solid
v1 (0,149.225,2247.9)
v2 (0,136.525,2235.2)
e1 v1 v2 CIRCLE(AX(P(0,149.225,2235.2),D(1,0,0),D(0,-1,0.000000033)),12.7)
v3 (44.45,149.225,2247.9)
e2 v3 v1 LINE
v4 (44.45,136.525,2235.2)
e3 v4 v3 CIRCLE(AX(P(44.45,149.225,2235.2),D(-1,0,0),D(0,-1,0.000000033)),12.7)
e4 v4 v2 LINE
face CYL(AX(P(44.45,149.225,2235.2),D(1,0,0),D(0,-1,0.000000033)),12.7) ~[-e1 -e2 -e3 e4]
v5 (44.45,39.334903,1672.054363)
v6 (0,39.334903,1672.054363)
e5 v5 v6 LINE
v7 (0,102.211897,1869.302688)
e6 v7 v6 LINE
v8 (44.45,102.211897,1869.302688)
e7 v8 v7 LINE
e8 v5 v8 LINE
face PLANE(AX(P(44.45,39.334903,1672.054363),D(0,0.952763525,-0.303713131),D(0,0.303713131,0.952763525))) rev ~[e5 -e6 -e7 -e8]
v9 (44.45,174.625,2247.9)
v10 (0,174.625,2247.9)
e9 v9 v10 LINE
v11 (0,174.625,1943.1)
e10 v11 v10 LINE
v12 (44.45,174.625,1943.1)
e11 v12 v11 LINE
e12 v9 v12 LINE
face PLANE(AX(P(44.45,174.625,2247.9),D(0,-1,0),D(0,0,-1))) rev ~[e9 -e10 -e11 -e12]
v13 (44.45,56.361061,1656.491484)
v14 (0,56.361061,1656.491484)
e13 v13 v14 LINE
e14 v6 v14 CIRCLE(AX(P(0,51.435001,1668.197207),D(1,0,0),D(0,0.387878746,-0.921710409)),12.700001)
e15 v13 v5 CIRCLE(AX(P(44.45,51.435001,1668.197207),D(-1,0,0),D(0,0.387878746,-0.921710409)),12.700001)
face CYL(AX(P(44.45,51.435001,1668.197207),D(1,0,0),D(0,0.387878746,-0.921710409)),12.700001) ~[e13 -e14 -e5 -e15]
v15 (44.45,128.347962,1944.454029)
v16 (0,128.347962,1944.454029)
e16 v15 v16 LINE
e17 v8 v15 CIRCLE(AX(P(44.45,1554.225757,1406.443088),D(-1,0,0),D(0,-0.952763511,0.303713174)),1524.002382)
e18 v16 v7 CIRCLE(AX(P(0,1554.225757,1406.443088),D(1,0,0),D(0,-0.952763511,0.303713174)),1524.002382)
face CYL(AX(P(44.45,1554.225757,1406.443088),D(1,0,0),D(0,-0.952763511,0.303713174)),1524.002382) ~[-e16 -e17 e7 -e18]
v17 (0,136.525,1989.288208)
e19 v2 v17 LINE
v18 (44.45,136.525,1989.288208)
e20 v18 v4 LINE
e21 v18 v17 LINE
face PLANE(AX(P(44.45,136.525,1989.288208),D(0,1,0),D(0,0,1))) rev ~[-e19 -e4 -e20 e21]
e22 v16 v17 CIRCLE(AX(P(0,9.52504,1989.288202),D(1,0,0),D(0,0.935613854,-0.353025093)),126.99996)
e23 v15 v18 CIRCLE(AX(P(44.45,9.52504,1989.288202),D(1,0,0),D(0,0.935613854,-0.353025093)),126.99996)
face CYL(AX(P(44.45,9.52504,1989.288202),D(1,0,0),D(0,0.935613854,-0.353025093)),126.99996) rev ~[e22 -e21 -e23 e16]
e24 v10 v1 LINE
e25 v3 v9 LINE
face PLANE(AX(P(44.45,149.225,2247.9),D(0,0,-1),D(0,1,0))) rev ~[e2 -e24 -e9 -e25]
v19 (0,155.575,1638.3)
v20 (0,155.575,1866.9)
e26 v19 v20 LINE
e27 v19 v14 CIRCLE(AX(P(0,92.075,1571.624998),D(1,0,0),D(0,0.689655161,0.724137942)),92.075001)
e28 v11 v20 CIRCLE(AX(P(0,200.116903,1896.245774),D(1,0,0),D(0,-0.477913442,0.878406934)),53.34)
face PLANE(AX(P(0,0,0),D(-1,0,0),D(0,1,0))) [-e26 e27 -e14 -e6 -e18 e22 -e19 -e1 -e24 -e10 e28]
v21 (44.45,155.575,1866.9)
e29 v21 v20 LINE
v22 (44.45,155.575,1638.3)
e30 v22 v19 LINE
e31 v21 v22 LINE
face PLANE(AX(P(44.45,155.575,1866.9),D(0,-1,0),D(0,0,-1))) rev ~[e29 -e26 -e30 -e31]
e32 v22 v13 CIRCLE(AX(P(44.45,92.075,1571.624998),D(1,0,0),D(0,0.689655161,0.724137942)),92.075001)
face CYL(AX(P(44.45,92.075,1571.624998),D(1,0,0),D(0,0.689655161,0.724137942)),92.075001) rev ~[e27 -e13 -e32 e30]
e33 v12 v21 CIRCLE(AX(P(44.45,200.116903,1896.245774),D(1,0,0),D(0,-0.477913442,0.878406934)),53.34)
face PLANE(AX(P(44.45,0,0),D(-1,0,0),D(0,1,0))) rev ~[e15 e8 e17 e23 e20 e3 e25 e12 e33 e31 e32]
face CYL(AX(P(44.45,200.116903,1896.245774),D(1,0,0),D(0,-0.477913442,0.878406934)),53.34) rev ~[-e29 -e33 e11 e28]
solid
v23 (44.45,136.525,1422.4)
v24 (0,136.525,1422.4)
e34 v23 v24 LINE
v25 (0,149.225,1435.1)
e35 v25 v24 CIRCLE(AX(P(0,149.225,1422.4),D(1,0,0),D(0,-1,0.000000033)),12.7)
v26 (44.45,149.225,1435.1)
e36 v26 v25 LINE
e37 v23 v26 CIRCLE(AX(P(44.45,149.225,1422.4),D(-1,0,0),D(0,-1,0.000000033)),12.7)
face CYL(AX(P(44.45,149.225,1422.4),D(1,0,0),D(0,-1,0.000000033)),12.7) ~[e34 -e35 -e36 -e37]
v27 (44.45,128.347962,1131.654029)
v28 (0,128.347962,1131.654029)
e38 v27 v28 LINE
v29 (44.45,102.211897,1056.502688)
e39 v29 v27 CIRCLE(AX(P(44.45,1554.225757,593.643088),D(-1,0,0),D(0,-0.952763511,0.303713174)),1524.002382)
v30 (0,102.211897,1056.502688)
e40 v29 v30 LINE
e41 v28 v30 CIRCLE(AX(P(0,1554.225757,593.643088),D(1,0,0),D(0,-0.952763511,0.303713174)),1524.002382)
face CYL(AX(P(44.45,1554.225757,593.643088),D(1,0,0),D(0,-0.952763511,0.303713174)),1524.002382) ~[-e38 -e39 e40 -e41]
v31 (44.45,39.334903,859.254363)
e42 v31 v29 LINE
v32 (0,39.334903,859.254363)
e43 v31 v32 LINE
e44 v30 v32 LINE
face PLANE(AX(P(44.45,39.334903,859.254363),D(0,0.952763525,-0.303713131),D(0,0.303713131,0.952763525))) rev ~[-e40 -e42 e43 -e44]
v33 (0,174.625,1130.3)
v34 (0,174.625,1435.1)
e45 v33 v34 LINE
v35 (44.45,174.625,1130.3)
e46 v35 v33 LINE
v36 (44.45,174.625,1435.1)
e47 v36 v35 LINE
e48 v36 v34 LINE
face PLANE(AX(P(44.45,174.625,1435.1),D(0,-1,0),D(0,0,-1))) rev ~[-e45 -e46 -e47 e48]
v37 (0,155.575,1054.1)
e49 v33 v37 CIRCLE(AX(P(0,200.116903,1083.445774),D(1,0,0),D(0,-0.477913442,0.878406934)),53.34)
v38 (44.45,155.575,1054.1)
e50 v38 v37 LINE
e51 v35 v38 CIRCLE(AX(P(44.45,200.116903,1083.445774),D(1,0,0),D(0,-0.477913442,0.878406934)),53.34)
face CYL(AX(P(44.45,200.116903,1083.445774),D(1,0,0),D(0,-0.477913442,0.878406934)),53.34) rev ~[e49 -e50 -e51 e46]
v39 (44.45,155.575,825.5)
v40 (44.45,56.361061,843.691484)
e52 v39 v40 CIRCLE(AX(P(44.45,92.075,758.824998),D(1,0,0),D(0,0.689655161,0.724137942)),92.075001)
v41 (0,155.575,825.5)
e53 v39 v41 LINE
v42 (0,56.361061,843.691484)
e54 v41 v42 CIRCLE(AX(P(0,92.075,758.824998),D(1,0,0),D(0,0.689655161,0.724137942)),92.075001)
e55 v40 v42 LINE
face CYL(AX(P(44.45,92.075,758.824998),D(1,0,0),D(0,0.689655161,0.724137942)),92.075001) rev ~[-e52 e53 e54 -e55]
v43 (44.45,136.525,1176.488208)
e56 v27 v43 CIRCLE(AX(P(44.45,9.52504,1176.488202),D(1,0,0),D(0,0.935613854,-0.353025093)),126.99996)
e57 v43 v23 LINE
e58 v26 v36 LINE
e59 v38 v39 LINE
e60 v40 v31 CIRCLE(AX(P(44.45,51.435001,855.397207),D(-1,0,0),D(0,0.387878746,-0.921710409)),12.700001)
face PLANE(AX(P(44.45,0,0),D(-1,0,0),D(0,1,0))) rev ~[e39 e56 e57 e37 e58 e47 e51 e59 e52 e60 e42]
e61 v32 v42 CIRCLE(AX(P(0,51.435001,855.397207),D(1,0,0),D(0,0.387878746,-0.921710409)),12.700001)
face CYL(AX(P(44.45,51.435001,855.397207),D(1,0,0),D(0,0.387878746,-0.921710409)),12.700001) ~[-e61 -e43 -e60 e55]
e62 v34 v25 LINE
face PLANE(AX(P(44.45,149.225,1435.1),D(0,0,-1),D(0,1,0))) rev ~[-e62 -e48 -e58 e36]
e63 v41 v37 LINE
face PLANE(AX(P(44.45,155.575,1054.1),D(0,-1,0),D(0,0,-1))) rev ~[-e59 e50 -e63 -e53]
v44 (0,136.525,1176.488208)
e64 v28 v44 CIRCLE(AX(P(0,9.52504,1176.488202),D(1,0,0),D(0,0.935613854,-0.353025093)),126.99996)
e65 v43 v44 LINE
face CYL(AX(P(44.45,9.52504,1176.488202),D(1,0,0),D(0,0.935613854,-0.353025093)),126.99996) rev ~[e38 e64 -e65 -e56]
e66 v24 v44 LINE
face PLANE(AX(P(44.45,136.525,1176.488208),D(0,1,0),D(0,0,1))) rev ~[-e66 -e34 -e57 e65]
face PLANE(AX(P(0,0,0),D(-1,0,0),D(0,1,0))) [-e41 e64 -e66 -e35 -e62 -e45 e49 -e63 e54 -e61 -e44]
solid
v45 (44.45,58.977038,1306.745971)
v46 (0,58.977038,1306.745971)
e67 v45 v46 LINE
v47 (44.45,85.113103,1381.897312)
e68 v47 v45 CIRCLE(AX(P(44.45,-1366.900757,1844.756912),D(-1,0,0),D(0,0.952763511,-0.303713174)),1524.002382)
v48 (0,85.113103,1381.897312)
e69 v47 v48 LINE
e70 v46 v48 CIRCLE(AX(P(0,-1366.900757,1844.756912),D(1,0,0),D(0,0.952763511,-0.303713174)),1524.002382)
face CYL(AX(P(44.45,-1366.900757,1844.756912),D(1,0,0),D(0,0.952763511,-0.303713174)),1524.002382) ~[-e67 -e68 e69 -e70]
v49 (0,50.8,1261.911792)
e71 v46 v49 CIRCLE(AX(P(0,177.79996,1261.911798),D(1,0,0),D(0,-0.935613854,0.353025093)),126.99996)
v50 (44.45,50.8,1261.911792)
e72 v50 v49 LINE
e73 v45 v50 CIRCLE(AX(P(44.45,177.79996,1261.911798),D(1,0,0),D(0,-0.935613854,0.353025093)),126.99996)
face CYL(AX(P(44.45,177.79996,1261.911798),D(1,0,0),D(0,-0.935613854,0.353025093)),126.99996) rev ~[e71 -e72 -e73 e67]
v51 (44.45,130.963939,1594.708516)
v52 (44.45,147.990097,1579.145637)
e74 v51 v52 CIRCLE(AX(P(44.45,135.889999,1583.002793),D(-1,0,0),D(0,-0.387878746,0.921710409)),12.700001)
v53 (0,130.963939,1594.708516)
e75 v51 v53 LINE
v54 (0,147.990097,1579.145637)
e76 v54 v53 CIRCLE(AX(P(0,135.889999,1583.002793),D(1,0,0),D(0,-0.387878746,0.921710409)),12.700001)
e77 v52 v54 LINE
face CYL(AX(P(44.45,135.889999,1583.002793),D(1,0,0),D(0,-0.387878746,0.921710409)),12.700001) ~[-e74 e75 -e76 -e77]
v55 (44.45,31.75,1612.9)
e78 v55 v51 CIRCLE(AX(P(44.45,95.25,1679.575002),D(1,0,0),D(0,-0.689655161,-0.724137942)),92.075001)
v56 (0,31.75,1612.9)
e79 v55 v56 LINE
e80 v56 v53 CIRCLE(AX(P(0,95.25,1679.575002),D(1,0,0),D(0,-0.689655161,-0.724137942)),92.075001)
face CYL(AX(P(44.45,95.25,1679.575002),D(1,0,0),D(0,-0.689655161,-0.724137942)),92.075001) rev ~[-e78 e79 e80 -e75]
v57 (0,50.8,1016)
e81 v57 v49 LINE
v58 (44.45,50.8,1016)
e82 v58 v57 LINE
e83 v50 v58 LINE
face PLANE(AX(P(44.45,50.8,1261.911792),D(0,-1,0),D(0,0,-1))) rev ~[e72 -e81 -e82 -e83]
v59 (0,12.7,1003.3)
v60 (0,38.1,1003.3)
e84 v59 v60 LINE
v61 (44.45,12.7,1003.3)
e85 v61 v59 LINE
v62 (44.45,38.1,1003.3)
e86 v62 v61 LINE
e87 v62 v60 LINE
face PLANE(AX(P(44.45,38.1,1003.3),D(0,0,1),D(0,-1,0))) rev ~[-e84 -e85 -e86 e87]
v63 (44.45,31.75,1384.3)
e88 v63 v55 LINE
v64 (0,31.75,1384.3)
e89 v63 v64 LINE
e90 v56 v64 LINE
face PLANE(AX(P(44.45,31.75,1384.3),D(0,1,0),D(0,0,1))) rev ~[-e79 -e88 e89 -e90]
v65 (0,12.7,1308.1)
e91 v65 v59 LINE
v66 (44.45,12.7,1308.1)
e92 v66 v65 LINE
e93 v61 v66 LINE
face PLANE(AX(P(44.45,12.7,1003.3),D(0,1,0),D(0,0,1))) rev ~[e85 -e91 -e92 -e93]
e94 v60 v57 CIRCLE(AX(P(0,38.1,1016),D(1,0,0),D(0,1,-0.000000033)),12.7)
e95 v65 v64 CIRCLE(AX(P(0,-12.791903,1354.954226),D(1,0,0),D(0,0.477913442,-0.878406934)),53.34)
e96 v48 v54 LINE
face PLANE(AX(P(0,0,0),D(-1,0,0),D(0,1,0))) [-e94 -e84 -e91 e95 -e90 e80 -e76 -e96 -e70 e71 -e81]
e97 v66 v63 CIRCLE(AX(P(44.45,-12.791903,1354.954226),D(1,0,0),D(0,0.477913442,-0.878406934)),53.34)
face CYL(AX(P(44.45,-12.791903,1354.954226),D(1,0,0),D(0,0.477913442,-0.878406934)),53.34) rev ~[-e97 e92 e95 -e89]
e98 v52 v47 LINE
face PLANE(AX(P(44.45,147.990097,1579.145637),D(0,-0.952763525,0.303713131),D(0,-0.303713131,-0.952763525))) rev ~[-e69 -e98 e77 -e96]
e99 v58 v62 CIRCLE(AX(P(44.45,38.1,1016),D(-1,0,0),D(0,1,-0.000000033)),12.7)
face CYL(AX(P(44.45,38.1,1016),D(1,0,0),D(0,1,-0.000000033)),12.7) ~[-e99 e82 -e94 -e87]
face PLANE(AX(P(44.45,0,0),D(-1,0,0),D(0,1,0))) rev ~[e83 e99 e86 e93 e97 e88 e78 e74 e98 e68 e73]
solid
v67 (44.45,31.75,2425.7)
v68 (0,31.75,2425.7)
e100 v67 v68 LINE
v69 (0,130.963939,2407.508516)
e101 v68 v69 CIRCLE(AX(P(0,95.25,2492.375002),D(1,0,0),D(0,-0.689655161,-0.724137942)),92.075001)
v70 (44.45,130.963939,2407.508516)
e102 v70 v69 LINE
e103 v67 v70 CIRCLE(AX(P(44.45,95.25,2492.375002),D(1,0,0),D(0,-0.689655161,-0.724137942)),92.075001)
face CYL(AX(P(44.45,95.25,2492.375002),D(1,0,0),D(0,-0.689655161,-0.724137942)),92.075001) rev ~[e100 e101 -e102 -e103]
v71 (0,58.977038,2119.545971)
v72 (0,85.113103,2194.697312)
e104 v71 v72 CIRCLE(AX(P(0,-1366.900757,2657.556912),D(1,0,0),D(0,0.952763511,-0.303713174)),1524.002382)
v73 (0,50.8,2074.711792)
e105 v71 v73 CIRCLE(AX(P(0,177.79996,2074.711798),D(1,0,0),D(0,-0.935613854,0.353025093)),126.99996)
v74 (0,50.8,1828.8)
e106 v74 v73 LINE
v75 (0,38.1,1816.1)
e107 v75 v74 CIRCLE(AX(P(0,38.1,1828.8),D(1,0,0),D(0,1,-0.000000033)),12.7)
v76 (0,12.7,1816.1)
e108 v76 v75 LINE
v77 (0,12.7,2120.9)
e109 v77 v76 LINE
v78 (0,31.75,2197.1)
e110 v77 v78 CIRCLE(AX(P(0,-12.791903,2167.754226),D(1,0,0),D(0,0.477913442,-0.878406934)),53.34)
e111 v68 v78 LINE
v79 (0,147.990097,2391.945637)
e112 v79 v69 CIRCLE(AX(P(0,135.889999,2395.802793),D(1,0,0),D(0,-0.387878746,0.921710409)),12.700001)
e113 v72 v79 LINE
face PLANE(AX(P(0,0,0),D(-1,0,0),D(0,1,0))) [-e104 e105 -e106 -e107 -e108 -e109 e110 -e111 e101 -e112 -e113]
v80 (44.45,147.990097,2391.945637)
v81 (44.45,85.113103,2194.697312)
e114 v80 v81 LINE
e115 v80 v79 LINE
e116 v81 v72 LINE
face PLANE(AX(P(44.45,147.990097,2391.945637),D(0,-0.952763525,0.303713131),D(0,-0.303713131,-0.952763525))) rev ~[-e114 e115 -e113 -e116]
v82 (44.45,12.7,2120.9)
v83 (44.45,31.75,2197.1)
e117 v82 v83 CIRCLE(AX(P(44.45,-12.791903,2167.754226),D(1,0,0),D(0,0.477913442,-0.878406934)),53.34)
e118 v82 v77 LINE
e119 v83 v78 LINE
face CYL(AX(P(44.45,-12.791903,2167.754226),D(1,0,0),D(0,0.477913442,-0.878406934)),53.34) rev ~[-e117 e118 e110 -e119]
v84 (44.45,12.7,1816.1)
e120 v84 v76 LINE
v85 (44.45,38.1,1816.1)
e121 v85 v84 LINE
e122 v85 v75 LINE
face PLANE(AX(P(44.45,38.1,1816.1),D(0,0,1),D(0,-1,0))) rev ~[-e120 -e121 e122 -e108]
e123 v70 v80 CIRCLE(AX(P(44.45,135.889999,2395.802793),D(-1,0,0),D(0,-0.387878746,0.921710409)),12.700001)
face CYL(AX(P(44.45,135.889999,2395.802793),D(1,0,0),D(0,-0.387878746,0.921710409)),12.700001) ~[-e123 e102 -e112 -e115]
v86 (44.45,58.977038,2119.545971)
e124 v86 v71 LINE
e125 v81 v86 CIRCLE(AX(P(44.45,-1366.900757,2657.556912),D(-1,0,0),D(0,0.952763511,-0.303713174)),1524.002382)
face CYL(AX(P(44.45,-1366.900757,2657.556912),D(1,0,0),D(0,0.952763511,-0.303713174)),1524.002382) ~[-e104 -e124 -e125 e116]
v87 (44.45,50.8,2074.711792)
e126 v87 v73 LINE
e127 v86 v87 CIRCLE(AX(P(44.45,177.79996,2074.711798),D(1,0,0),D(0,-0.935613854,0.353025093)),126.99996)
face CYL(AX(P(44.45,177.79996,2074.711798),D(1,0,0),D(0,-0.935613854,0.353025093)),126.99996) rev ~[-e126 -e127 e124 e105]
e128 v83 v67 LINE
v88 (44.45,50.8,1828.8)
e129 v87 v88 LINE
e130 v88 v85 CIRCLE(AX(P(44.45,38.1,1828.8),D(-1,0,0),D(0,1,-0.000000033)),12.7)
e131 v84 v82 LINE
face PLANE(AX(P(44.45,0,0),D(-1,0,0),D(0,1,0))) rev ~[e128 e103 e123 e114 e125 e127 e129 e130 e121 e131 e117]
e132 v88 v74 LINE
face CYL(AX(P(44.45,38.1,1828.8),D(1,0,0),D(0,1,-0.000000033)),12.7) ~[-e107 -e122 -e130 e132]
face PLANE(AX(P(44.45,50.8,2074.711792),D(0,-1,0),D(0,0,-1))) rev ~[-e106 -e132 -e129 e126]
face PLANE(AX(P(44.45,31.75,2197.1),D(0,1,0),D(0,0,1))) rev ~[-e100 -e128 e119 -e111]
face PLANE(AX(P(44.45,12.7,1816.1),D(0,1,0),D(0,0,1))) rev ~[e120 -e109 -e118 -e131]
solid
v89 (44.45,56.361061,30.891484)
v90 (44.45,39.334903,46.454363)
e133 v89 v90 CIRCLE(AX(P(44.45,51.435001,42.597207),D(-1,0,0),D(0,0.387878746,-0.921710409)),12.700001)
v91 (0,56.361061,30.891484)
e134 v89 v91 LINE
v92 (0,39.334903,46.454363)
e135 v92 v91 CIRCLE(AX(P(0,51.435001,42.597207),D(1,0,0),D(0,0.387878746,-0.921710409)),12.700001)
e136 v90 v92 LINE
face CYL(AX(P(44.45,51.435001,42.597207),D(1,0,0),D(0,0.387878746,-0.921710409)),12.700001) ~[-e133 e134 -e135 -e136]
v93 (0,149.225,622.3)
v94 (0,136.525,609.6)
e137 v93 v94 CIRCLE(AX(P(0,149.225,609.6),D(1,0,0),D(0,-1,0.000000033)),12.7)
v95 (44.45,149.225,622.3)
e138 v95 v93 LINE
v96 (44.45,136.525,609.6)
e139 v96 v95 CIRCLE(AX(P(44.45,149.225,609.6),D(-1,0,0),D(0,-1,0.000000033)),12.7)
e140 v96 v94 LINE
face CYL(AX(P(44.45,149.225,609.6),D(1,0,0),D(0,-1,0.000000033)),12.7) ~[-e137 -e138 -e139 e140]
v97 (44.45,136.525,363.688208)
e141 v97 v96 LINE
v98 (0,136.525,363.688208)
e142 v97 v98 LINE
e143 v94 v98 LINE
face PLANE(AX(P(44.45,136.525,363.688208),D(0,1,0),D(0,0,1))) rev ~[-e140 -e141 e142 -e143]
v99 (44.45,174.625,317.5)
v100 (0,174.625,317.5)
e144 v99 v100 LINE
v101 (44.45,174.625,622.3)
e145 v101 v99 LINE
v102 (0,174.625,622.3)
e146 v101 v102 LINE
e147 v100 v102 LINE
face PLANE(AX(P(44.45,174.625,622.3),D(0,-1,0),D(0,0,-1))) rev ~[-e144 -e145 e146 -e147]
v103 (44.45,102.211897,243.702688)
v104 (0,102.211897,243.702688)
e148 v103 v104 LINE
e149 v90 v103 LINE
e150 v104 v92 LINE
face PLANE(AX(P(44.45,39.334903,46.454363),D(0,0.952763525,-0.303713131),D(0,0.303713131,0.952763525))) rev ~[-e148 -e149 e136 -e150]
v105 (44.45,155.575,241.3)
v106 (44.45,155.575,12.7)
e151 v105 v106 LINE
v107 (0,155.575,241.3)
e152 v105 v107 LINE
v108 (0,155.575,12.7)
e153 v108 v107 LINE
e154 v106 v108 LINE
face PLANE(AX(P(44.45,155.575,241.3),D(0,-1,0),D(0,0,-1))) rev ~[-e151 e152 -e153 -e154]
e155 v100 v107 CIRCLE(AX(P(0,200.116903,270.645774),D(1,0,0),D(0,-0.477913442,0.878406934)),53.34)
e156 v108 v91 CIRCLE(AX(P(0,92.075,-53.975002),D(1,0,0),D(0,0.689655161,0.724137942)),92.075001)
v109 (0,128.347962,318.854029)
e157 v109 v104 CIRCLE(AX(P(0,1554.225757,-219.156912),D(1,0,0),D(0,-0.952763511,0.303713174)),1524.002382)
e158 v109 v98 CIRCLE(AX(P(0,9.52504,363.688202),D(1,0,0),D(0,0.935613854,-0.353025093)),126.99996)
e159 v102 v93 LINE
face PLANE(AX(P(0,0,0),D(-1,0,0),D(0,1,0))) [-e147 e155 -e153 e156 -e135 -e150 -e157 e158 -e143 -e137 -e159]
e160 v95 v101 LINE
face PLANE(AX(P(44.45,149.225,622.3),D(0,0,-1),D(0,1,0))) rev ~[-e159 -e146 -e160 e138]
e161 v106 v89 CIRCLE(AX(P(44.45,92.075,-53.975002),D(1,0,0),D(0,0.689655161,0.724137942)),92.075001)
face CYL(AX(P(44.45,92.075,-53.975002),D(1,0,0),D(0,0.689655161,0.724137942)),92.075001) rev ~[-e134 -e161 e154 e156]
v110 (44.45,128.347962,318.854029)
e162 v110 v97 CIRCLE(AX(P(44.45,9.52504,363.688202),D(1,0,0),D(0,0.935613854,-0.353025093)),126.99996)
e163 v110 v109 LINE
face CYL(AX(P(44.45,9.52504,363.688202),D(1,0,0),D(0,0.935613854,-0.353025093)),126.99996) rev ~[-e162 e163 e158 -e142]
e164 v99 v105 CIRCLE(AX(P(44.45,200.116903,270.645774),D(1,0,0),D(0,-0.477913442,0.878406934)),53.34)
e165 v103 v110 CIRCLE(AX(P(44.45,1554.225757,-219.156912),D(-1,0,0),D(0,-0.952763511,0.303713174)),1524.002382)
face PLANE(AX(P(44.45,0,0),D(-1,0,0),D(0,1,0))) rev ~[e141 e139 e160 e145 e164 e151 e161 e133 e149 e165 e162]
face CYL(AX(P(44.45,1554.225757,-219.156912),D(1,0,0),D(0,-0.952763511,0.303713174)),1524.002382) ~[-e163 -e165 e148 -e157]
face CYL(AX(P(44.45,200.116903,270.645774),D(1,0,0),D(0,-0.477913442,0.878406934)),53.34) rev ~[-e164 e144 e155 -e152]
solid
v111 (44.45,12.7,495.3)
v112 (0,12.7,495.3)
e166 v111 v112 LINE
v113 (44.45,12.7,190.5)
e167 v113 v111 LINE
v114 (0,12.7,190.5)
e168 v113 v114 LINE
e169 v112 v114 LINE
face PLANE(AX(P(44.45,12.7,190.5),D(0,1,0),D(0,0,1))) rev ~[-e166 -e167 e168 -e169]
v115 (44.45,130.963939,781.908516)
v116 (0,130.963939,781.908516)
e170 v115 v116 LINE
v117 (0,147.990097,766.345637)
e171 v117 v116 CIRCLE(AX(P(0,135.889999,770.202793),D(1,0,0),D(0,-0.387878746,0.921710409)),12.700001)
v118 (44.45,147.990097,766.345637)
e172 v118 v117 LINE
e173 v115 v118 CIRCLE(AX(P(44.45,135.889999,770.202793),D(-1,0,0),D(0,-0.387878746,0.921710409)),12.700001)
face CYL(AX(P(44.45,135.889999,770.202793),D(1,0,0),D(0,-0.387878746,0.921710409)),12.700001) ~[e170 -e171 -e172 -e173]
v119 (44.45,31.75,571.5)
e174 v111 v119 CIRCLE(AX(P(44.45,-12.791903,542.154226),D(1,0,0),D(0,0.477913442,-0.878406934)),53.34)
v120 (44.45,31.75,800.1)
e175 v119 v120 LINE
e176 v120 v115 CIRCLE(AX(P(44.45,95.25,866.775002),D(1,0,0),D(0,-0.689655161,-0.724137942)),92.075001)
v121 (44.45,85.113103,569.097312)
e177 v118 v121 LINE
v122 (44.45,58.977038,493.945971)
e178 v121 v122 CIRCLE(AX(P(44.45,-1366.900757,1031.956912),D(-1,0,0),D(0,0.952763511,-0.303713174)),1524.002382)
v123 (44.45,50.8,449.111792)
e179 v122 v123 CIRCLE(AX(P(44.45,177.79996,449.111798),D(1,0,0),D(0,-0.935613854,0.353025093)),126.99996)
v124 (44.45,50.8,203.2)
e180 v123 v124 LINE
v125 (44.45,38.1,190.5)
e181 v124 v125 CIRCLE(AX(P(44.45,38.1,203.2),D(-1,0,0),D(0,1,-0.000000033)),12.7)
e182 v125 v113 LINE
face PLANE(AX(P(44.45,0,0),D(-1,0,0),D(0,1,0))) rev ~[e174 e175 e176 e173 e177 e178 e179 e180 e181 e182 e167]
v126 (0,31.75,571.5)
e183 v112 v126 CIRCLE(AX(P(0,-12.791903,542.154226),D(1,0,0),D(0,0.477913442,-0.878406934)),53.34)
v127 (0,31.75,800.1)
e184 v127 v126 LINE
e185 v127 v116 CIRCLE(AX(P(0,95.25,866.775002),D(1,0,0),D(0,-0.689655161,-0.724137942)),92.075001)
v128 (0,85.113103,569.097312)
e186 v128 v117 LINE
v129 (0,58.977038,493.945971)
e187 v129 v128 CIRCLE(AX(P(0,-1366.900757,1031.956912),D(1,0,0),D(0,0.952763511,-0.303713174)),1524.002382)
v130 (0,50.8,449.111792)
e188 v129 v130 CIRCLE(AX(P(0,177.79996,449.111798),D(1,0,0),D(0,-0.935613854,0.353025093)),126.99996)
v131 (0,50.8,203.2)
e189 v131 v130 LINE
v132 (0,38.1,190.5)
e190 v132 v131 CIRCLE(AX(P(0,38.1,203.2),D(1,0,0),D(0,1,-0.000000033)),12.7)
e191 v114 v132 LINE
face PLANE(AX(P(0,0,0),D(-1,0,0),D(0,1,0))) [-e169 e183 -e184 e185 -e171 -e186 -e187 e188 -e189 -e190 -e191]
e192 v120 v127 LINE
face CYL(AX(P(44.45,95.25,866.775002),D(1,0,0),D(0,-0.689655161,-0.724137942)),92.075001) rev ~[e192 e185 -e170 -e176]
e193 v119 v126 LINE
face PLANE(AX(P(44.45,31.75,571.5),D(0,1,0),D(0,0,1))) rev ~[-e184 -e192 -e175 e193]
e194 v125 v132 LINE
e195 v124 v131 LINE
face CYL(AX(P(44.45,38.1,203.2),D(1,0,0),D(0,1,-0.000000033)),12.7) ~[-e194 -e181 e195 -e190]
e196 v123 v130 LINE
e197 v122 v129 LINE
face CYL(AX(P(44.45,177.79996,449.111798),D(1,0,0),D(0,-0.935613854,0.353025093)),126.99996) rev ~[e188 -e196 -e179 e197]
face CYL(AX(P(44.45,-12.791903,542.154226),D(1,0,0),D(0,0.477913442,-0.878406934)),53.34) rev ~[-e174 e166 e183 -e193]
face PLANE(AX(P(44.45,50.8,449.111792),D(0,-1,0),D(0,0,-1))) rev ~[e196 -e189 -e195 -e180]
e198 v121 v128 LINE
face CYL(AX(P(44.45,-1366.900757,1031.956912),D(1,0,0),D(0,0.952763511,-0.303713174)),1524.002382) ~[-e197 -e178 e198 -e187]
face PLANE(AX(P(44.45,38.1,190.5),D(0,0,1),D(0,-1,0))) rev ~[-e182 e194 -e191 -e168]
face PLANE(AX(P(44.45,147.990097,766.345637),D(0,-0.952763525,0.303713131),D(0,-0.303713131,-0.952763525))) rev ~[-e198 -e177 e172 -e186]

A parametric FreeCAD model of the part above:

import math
import FreeCAD as App
import Part
import Sketcher
from FreeCAD import Vector
Q = App.Units.Quantity

doc = App.newDocument("Part")
body = doc.addObject("PartDesign::Body", "Body")
body.AllowCompound = True

# Sketch on XY plane
sketch1 = doc.addObject("Sketcher::SketchObject", "Sketch")
body.addObject(sketch1)
sketch1.AttachmentSupport = (doc.XY_Plane, [""])
sketch1.MapMode = "FlatFace"
sketch1.addGeometry(Part.LineSegment(Vector(0, 184, 0), Vector(0, 0, 0)), False)
sketch1.addGeometry(Part.LineSegment(Vector(0, 0, 0), Vector(44, 0, 0)), False)
sketch1.addGeometry(Part.LineSegment(Vector(44, 0, 0), Vector(44, 184, 0)), False)
sketch1.addGeometry(Part.LineSegment(Vector(44, 184, 0), Vector(0, 184, 0)), False)
sketch1.addConstraint(Sketcher.Constraint("Coincident", 0, 2, 1, 1))
sketch1.addConstraint(Sketcher.Constraint("Coincident", 1, 2, 2, 1))
sketch1.addConstraint(Sketcher.Constraint("Coincident", 2, 2, 3, 1))
sketch1.addConstraint(Sketcher.Constraint("Coincident", 3, 2, 0, 1))
sketch1.addConstraint(Sketcher.Constraint("Vertical", 0))
sketch1.addConstraint(Sketcher.Constraint("Horizontal", 1))
sketch1.addConstraint(Sketcher.Constraint("Vertical", 2))
sketch1.addConstraint(Sketcher.Constraint("Horizontal", 3))
sketch1.addConstraint(Sketcher.Constraint("Coincident", 0, 2, -1, 1))
sketch1.addConstraint(Sketcher.Constraint("DistanceX", 1, 1, 1, 2, Q("1.75 in")))
sketch1.addConstraint(Sketcher.Constraint("DistanceY", 0, 2, 0, 1, Q("7.25 in")))
pad1 = doc.addObject("PartDesign::Pad", "Pad")
body.addObject(pad1)
pad1.Profile = sketch1
pad1.Length = Q("96 in")

# Sketch on YZ plane
sketch2 = doc.addObject("Sketcher::SketchObject", "Sketch001")
body.addObject(sketch2)
sketch2.AttachmentSupport = (doc.YZ_Plane, [""])
sketch2.MapMode = "FlatFace"
sketch2.AttachmentOffset = App.Placement(Vector(0, 0, 1.75 * 25.4), App.Rotation())
sketch2.addGeometry(Part.LineSegment(Vector(0, 2438.4, 0), Vector(0, 0, 0)), False)
sketch2.addGeometry(Part.LineSegment(Vector(0, 0, 0), Vector(184.15, 0, 0)), False)
sketch2.addGeometry(Part.LineSegment(Vector(184.15, 0, 0), Vector(184.15, 2438.4, 0)), False)
sketch2.addGeometry(Part.LineSegment(Vector(184.15, 2438.4, 0), Vector(0, 2438.4, 0)), False)
sketch2.addGeometry(Part.ArcOfCircle(Part.Circle(Vector(177.79996, 449.111798, 0), Vector(0, 0, 1), 126.99996), math.radians(159.327545), math.radians(180.000003)), False)
sketch2.addGeometry(Part.LineSegment(Vector(50.8, 449.111792, 0), Vector(50.8, 203.2, 0)), False)
sketch2.addGeometry(Part.ArcOfCircle(Part.Circle(Vector(38.1, 203.2, 0), Vector(0, 0, 1), 12.7), math.radians(-89.999998), math.radians(-0.000002)), False)
sketch2.addGeometry(Part.LineSegment(Vector(38.1, 190.5, 0), Vector(12.7, 190.5, 0)), False)
sketch2.addGeometry(Part.LineSegment(Vector(12.7, 190.5, 0), Vector(12.7, 495.3, 0)), False)
sketch2.addGeometry(Part.ArcOfCircle(Part.Circle(Vector(-12.791903, 542.154226, 0), Vector(0, 0, 1), 53.34), math.radians(-61.450786), math.radians(33.378299)), False)
sketch2.addGeometry(Part.LineSegment(Vector(31.75, 571.5, 0), Vector(31.75, 800.1, 0)), False)
sketch2.addGeometry(Part.ArcOfCircle(Part.Circle(Vector(95.25, 866.775002, 0), Vector(0, 0, 1), 92.075001), math.radians(-133.602818), math.radians(-67.177425)), False)
sketch2.addGeometry(Part.ArcOfCircle(Part.Circle(Vector(135.889999, 770.202793, 0), Vector(0, 0, 1), 12.700001), math.radians(-17.680756), math.radians(112.822573)), False)
sketch2.addGeometry(Part.LineSegment(Vector(147.990097, 766.345637, 0), Vector(85.113103, 569.097312, 0)), False)
sketch2.addGeometry(Part.ArcOfCircle(Part.Circle(Vector(-1366.900757, 1031.956912, 0), Vector(0, 0, 1), 1524.002382), math.radians(-20.67245), math.radians(-17.680762)), False)
sketch2.addGeometry(Part.ArcOfCircle(Part.Circle(Vector(149.225, 609.6, 0), Vector(0, 0, 1), 12.7), math.radians(90.000002), math.radians(179.999998)), False)
sketch2.addGeometry(Part.LineSegment(Vector(149.225, 622.3, 0), Vector(174.625, 622.3, 0)), False)
sketch2.addGeometry(Part.LineSegment(Vector(174.625, 622.3, 0), Vector(174.625, 317.5, 0)), False)
sketch2.addGeometry(Part.ArcOfCircle(Part.Circle(Vector(200.116903, 270.645774, 0), Vector(0, 0, 1), 53.34), math.radians(118.549214), math.radians(213.378299)), False)
sketch2.addGeometry(Part.LineSegment(Vector(155.575, 241.3, 0), Vector(155.575, 12.7, 0)), False)
sketch2.addGeometry(Part.ArcOfCircle(Part.Circle(Vector(92.075, -53.975002, 0), Vector(0, 0, 1), 92.075001), math.radians(46.397182), math.radians(112.822575)), False)
sketch2.addGeometry(Part.ArcOfCircle(Part.Circle(Vector(51.435001, 42.597207, 0), Vector(0, 0, 1), 12.700001), math.radians(162.319244), math.radians(292.822573)), False)
sketch2.addGeometry(Part.LineSegment(Vector(39.334903, 46.454363, 0), Vector(102.211897, 243.702688, 0)), False)
sketch2.addGeometry(Part.ArcOfCircle(Part.Circle(Vector(1554.225757, -219.156912, 0), Vector(0, 0, 1), 1524.002382), math.radians(159.32755), math.radians(162.319238)), False)
sketch2.addGeometry(Part.ArcOfCircle(Part.Circle(Vector(9.52504, 363.688202, 0), Vector(0, 0, 1), 126.99996), math.radians(-20.672455), math.radians(0.000003)), False)
sketch2.addGeometry(Part.LineSegment(Vector(136.525, 363.688208, 0), Vector(136.525, 609.6, 0)), False)
sketch2.addGeometry(Part.ArcOfCircle(Part.Circle(Vector(9.52504, 1176.488202, 0), Vector(0, 0, 1), 126.99996), math.radians(-20.672455), math.radians(0.000003)), False)
sketch2.addGeometry(Part.LineSegment(Vector(136.525, 1176.488208, 0), Vector(136.525, 1422.4, 0)), False)
sketch2.addGeometry(Part.ArcOfCircle(Part.Circle(Vector(149.225, 1422.4, 0), Vector(0, 0, 1), 12.7), math.radians(90.000002), math.radians(179.999998)), False)
sketch2.addGeometry(Part.LineSegment(Vector(149.225, 1435.1, 0), Vector(174.625, 1435.1, 0)), False)
sketch2.addGeometry(Part.LineSegment(Vector(174.625, 1435.1, 0), Vector(174.625, 1130.3, 0)), False)
sketch2.addGeometry(Part.ArcOfCircle(Part.Circle(Vector(200.116903, 1083.445774, 0), Vector(0, 0, 1), 53.34), math.radians(118.549214), math.radians(213.378299)), False)
sketch2.addGeometry(Part.LineSegment(Vector(155.575, 1054.1, 0), Vector(155.575, 825.5, 0)), False)
sketch2.addGeometry(Part.ArcOfCircle(Part.Circle(Vector(92.075, 758.824998, 0), Vector(0, 0, 1), 92.075001), math.radians(46.397182), math.radians(112.822575)), False)
sketch2.addGeometry(Part.ArcOfCircle(Part.Circle(Vector(51.435001, 855.397207, 0), Vector(0, 0, 1), 12.700001), math.radians(162.319244), math.radians(292.822573)), False)
sketch2.addGeometry(Part.LineSegment(Vector(39.334903, 859.254363, 0), Vector(102.211897, 1056.502688, 0)), False)
sketch2.addGeometry(Part.ArcOfCircle(Part.Circle(Vector(1554.225757, 593.643088, 0), Vector(0, 0, 1), 1524.002382), math.radians(159.32755), math.radians(162.319238)), False)
sketch2.addGeometry(Part.ArcOfCircle(Part.Circle(Vector(177.79996, 1261.911798, 0), Vector(0, 0, 1), 126.99996), math.radians(159.327545), math.radians(180.000003)), False)
sketch2.addGeometry(Part.LineSegment(Vector(50.8, 1261.911792, 0), Vector(50.8, 1016, 0)), False)
sketch2.addGeometry(Part.ArcOfCircle(Part.Circle(Vector(38.1, 1016, 0), Vector(0, 0, 1), 12.7), math.radians(-89.999998), math.radians(-0.000002)), False)
sketch2.addGeometry(Part.LineSegment(Vector(38.1, 1003.3, 0), Vector(12.7, 1003.3, 0)), False)
sketch2.addGeometry(Part.LineSegment(Vector(12.7, 1003.3, 0), Vector(12.7, 1308.1, 0)), False)
sketch2.addGeometry(Part.ArcOfCircle(Part.Circle(Vector(-12.791903, 1354.954226, 0), Vector(0, 0, 1), 53.34), math.radians(-61.450786), math.radians(33.378299)), False)
sketch2.addGeometry(Part.LineSegment(Vector(31.75, 1384.3, 0), Vector(31.75, 1612.9, 0)), False)
sketch2.addGeometry(Part.ArcOfCircle(Part.Circle(Vector(95.25, 1679.575002, 0), Vector(0, 0, 1), 92.075001), math.radians(-133.602818), math.radians(-67.177425)), False)
sketch2.addGeometry(Part.ArcOfCircle(Part.Circle(Vector(135.889999, 1583.002793, 0), Vector(0, 0, 1), 12.700001), math.radians(-17.680756), math.radians(112.822573)), False)
sketch2.addGeometry(Part.LineSegment(Vector(147.990097, 1579.145637, 0), Vector(85.113103, 1381.897312, 0)), False)
sketch2.addGeometry(Part.ArcOfCircle(Part.Circle(Vector(-1366.900757, 1844.756912, 0), Vector(0, 0, 1), 1524.002382), math.radians(-20.67245), math.radians(-17.680762)), False)
sketch2.addGeometry(Part.ArcOfCircle(Part.Circle(Vector(38.1, 1828.8, 0), Vector(0, 0, 1), 12.7), math.radians(-89.999998), math.radians(-0.000002)), False)
sketch2.addGeometry(Part.LineSegment(Vector(38.1, 1816.1, 0), Vector(12.7, 1816.1, 0)), False)
sketch2.addGeometry(Part.LineSegment(Vector(12.7, 1816.1, 0), Vector(12.7, 2120.9, 0)), False)
sketch2.addGeometry(Part.ArcOfCircle(Part.Circle(Vector(-12.791903, 2167.754226, 0), Vector(0, 0, 1), 53.34), math.radians(-61.450786), math.radians(33.378299)), False)
sketch2.addGeometry(Part.LineSegment(Vector(31.75, 2197.1, 0), Vector(31.75, 2425.7, 0)), False)
sketch2.addGeometry(Part.ArcOfCircle(Part.Circle(Vector(95.25, 2492.375002, 0), Vector(0, 0, 1), 92.075001), math.radians(-133.602818), math.radians(-67.177425)), False)
sketch2.addGeometry(Part.ArcOfCircle(Part.Circle(Vector(135.889999, 2395.802793, 0), Vector(0, 0, 1), 12.700001), math.radians(-17.680756), math.radians(112.822573)), False)
sketch2.addGeometry(Part.LineSegment(Vector(147.990097, 2391.945637, 0), Vector(85.113103, 2194.697312, 0)), False)
sketch2.addGeometry(Part.ArcOfCircle(Part.Circle(Vector(-1366.900757, 2657.556912, 0), Vector(0, 0, 1), 1524.002382), math.radians(-20.67245), math.radians(-17.680762)), False)
sketch2.addGeometry(Part.ArcOfCircle(Part.Circle(Vector(177.79996, 2074.711798, 0), Vector(0, 0, 1), 126.99996), math.radians(159.327545), math.radians(180.000003)), False)
sketch2.addGeometry(Part.LineSegment(Vector(50.8, 2074.711792, 0), Vector(50.8, 1828.8, 0)), False)
sketch2.addGeometry(Part.ArcOfCircle(Part.Circle(Vector(149.225, 2235.2, 0), Vector(0, 0, 1), 12.7), math.radians(90.000002), math.radians(179.999998)), False)
sketch2.addGeometry(Part.LineSegment(Vector(149.225, 2247.9, 0), Vector(174.625, 2247.9, 0)), False)
sketch2.addGeometry(Part.LineSegment(Vector(174.625, 2247.9, 0), Vector(174.625, 1943.1, 0)), False)
sketch2.addGeometry(Part.ArcOfCircle(Part.Circle(Vector(200.116903, 1896.245774, 0), Vector(0, 0, 1), 53.34), math.radians(118.549214), math.radians(213.378299)), False)
sketch2.addGeometry(Part.LineSegment(Vector(155.575, 1866.9, 0), Vector(155.575, 1638.3, 0)), False)
sketch2.addGeometry(Part.ArcOfCircle(Part.Circle(Vector(92.075, 1571.624998, 0), Vector(0, 0, 1), 92.075001), math.radians(46.397182), math.radians(112.822575)), False)
sketch2.addGeometry(Part.ArcOfCircle(Part.Circle(Vector(51.435001, 1668.197207, 0), Vector(0, 0, 1), 12.700001), math.radians(162.319244), math.radians(292.822573)), False)
sketch2.addGeometry(Part.LineSegment(Vector(39.334903, 1672.054363, 0), Vector(102.211897, 1869.302688, 0)), False)
sketch2.addGeometry(Part.ArcOfCircle(Part.Circle(Vector(1554.225757, 1406.443088, 0), Vector(0, 0, 1), 1524.002382), math.radians(159.32755), math.radians(162.319238)), False)
sketch2.addGeometry(Part.ArcOfCircle(Part.Circle(Vector(9.52504, 1989.288202, 0), Vector(0, 0, 1), 126.99996), math.radians(-20.672455), math.radians(0.000003)), False)
sketch2.addGeometry(Part.LineSegment(Vector(136.525, 1989.288208, 0), Vector(136.525, 2235.2, 0)), False)
sketch2.addConstraint(Sketcher.Constraint("Coincident", 0, 2, 1, 1))
sketch2.addConstraint(Sketcher.Constraint("Coincident", 1, 2, 2, 1))
sketch2.addConstraint(Sketcher.Constraint("Coincident", 2, 2, 3, 1))
sketch2.addConstraint(Sketcher.Constraint("Coincident", 3, 2, 0, 1))
sketch2.addConstraint(Sketcher.Constraint("Coincident", 4, 2, 5, 1))
sketch2.addConstraint(Sketcher.Constraint("Coincident", 5, 2, 6, 2))
sketch2.addConstraint(Sketcher.Constraint("Coincident", 6, 1, 7, 1))
sketch2.addConstraint(Sketcher.Constraint("Coincident", 7, 2, 8, 1))
sketch2.addConstraint(Sketcher.Constraint("Coincident", 8, 2, 9, 1))
sketch2.addConstraint(Sketcher.Constraint("Coincident", 9, 2, 10, 1))
sketch2.addConstraint(Sketcher.Constraint("Coincident", 10, 2, 11, 1))
sketch2.addConstraint(Sketcher.Constraint("Coincident", 11, 2, 12, 2))
sketch2.addConstraint(Sketcher.Constraint("Coincident", 12, 1, 13, 1))
sketch2.addConstraint(Sketcher.Constraint("Coincident", 13, 2, 14, 2))
sketch2.addConstraint(Sketcher.Constraint("Coincident", 14, 1, 4, 1))
sketch2.addConstraint(Sketcher.Constraint("Coincident", 15, 1, 16, 1))
sketch2.addConstraint(Sketcher.Constraint("Coincident", 16, 2, 17, 1))
sketch2.addConstraint(Sketcher.Constraint("Coincident", 17, 2, 18, 1))
sketch2.addConstraint(Sketcher.Constraint("Coincident", 18, 2, 19, 1))
sketch2.addConstraint(Sketcher.Constraint("Coincident", 19, 2, 20, 1))
sketch2.addConstraint(Sketcher.Constraint("Coincident", 20, 2, 21, 2))
sketch2.addConstraint(Sketcher.Constraint("Coincident", 21, 1, 22, 1))
sketch2.addConstraint(Sketcher.Constraint("Coincident", 22, 2, 23, 2))
sketch2.addConstraint(Sketcher.Constraint("Coincident", 23, 1, 24, 1))
sketch2.addConstraint(Sketcher.Constraint("Coincident", 24, 2, 25, 1))
sketch2.addConstraint(Sketcher.Constraint("Coincident", 25, 2, 15, 2))
sketch2.addConstraint(Sketcher.Constraint("Coincident", 26, 2, 27, 1))
sketch2.addConstraint(Sketcher.Constraint("Coincident", 27, 2, 28, 2))
sketch2.addConstraint(Sketcher.Constraint("Coincident", 28, 1, 29, 1))
sketch2.addConstraint(Sketcher.Constraint("Coincident", 29, 2, 30, 1))
sketch2.addConstraint(Sketcher.Constraint("Coincident", 30, 2, 31, 1))
sketch2.addConstraint(Sketcher.Constraint("Coincident", 31, 2, 32, 1))
sketch2.addConstraint(Sketcher.Constraint("Coincident", 32, 2, 33, 1))
sketch2.addConstraint(Sketcher.Constraint("Coincident", 33, 2, 34, 2))
sketch2.addConstraint(Sketcher.Constraint("Coincident", 34, 1, 35, 1))
sketch2.addConstraint(Sketcher.Constraint("Coincident", 35, 2, 36, 2))
sketch2.addConstraint(Sketcher.Constraint("Coincident", 36, 1, 26, 1))
sketch2.addConstraint(Sketcher.Constraint("Coincident", 37, 2, 38, 1))
sketch2.addConstraint(Sketcher.Constraint("Coincident", 38, 2, 39, 2))
sketch2.addConstraint(Sketcher.Constraint("Coincident", 39, 1, 40, 1))
sketch2.addConstraint(Sketcher.Constraint("Coincident", 40, 2, 41, 1))
sketch2.addConstraint(Sketcher.Constraint("Coincident", 41, 2, 42, 1))
sketch2.addConstraint(Sketcher.Constraint("Coincident", 42, 2, 43, 1))
sketch2.addConstraint(Sketcher.Constraint("Coincident", 43, 2, 44, 1))
sketch2.addConstraint(Sketcher.Constraint("Coincident", 44, 2, 45, 2))
sketch2.addConstraint(Sketcher.Constraint("Coincident", 45, 1, 46, 1))
sketch2.addConstraint(Sketcher.Constraint("Coincident", 46, 2, 47, 2))
sketch2.addConstraint(Sketcher.Constraint("Coincident", 47, 1, 37, 1))
sketch2.addConstraint(Sketcher.Constraint("Coincident", 48, 1, 49, 1))
sketch2.addConstraint(Sketcher.Constraint("Coincident", 49, 2, 50, 1))
sketch2.addConstraint(Sketcher.Constraint("Coincident", 50, 2, 51, 1))
sketch2.addConstraint(Sketcher.Constraint("Coincident", 51, 2, 52, 1))
sketch2.addConstraint(Sketcher.Constraint("Coincident", 52, 2, 53, 1))
sketch2.addConstraint(Sketcher.Constraint("Coincident", 53, 2, 54, 2))
sketch2.addConstraint(Sketcher.Constraint("Coincident", 54, 1, 55, 1))
sketch2.addConstraint(Sketcher.Constraint("Coincident", 55, 2, 56, 2))
sketch2.addConstraint(Sketcher.Constraint("Coincident", 56, 1, 57, 1))
sketch2.addConstraint(Sketcher.Constraint("Coincident", 57, 2, 58, 1))
sketch2.addConstraint(Sketcher.Constraint("Coincident", 58, 2, 48, 2))
sketch2.addConstraint(Sketcher.Constraint("Coincident", 59, 1, 60, 1))
sketch2.addConstraint(Sketcher.Constraint("Coincident", 60, 2, 61, 1))
sketch2.addConstraint(Sketcher.Constraint("Coincident", 61, 2, 62, 1))
sketch2.addConstraint(Sketcher.Constraint("Coincident", 62, 2, 63, 1))
sketch2.addConstraint(Sketcher.Constraint("Coincident", 63, 2, 64, 1))
sketch2.addConstraint(Sketcher.Constraint("Coincident", 64, 2, 65, 2))
sketch2.addConstraint(Sketcher.Constraint("Coincident", 65, 1, 66, 1))
sketch2.addConstraint(Sketcher.Constraint("Coincident", 66, 2, 67, 2))
sketch2.addConstraint(Sketcher.Constraint("Coincident", 67, 1, 68, 1))
sketch2.addConstraint(Sketcher.Constraint("Coincident", 68, 2, 69, 1))
sketch2.addConstraint(Sketcher.Constraint("Coincident", 69, 2, 59, 2))
sketch2.addConstraint(Sketcher.Constraint("Vertical", 0))
sketch2.addConstraint(Sketcher.Constraint("Horizontal", 1))
sketch2.addConstraint(Sketcher.Constraint("Vertical", 2))
sketch2.addConstraint(Sketcher.Constraint("Horizontal", 3))
sketch2.addConstraint(Sketcher.Constraint("Vertical", 5))
sketch2.addConstraint(Sketcher.Constraint("Horizontal", 7))
sketch2.addConstraint(Sketcher.Constraint("Vertical", 8))
sketch2.addConstraint(Sketcher.Constraint("Vertical", 10))
sketch2.addConstraint(Sketcher.Constraint("Horizontal", 16))
sketch2.addConstraint(Sketcher.Constraint("Vertical", 17))
sketch2.addConstraint(Sketcher.Constraint("Vertical", 19))
sketch2.addConstraint(Sketcher.Constraint("Vertical", 25))
sketch2.addConstraint(Sketcher.Constraint("Vertical", 27))
sketch2.addConstraint(Sketcher.Constraint("Horizontal", 29))
sketch2.addConstraint(Sketcher.Constraint("Vertical", 30))
sketch2.addConstraint(Sketcher.Constraint("Vertical", 32))
sketch2.addConstraint(Sketcher.Constraint("Vertical", 38))
sketch2.addConstraint(Sketcher.Constraint("Horizontal", 40))
sketch2.addConstraint(Sketcher.Constraint("Vertical", 41))
sketch2.addConstraint(Sketcher.Constraint("Vertical", 43))
sketch2.addConstraint(Sketcher.Constraint("Horizontal", 49))
sketch2.addConstraint(Sketcher.Constraint("Vertical", 50))
sketch2.addConstraint(Sketcher.Constraint("Vertical", 52))
sketch2.addConstraint(Sketcher.Constraint("Vertical", 58))
sketch2.addConstraint(Sketcher.Constraint("Horizontal", 60))
sketch2.addConstraint(Sketcher.Constraint("Vertical", 61))
sketch2.addConstraint(Sketcher.Constraint("Vertical", 63))
sketch2.addConstraint(Sketcher.Constraint("Vertical", 69))
sketch2.addConstraint(Sketcher.Constraint("Coincident", 0, 2, -1, 1))
sketch2.addConstraint(Sketcher.Constraint("Radius", 6, Q("0.5 in")))
sketch2.addConstraint(Sketcher.Constraint("Radius", 9, Q("2.1 in")))
sketch2.addConstraint(Sketcher.Constraint("Radius", 12, Q("0.5 in")))
sketch2.addConstraint(Sketcher.Constraint("Radius", 15, Q("0.5 in")))
sketch2.addConstraint(Sketcher.Constraint("Radius", 18, Q("2.1 in")))
sketch2.addConstraint(Sketcher.Constraint("Radius", 21, Q("0.5 in")))
sketch2.addConstraint(Sketcher.Constraint("Radius", 28, Q("0.5 in")))
sketch2.addConstraint(Sketcher.Constraint("Radius", 31, Q("2.1 in")))
sketch2.addConstraint(Sketcher.Constraint("Radius", 34, Q("0.5 in")))
sketch2.addConstraint(Sketcher.Constraint("Radius", 39, Q("0.5 in")))
sketch2.addConstraint(Sketcher.Constraint("Radius", 42, Q("2.1 in")))
sketch2.addConstraint(Sketcher.Constraint("Radius", 45, Q("0.5 in")))
sketch2.addConstraint(Sketcher.Constraint("Radius", 48, Q("0.5 in")))
sketch2.addConstraint(Sketcher.Constraint("Radius", 51, Q("2.1 in")))
sketch2.addConstraint(Sketcher.Constraint("Radius", 54, Q("0.5 in")))
sketch2.addConstraint(Sketcher.Constraint("Radius", 59, Q("0.5 in")))
sketch2.addConstraint(Sketcher.Constraint("Radius", 62, Q("2.1 in")))
sketch2.addConstraint(Sketcher.Constraint("Radius", 65, Q("0.5 in")))
sketch2.addConstraint(Sketcher.Constraint("DistanceX", 7, 2, 7, 1, Q("1 in")))
sketch2.addConstraint(Sketcher.Constraint("DistanceX", 16, 1, 16, 2, Q("1 in")))
sketch2.addConstraint(Sketcher.Constraint("DistanceX", 29, 1, 29, 2, Q("1 in")))
sketch2.addConstraint(Sketcher.Constraint("DistanceX", 40, 2, 40, 1, Q("1 in")))
sketch2.addConstraint(Sketcher.Constraint("DistanceX", 49, 2, 49, 1, Q("1 in")))
sketch2.addConstraint(Sketcher.Constraint("DistanceX", 60, 1, 60, 2, Q("1 in")))
sketch2.addConstraint(Sketcher.Constraint("DistanceY", 0, 2, 0, 1, Q("96 in")))
sketch2.addConstraint(Sketcher.Constraint("DistanceY", 8, 1, 8, 2, Q("12 in")))
sketch2.addConstraint(Sketcher.Constraint("DistanceY", 10, 1, 10, 2, Q("9 in")))
sketch2.addConstraint(Sketcher.Constraint("DistanceY", 17, 2, 17, 1, Q("12 in")))
sketch2.addConstraint(Sketcher.Constraint("DistanceY", 19, 2, 19, 1, Q("9 in")))
sketch2.addConstraint(Sketcher.Constraint("DistanceY", 30, 2, 30, 1, Q("12 in")))
sketch2.addConstraint(Sketcher.Constraint("DistanceY", 32, 2, 32, 1, Q("9 in")))
sketch2.addConstraint(Sketcher.Constraint("DistanceY", 41, 1, 41, 2, Q("12 in")))
sketch2.addConstraint(Sketcher.Constraint("DistanceY", 43, 1, 43, 2, Q("9 in")))
sketch2.addConstraint(Sketcher.Constraint("DistanceY", 50, 1, 50, 2, Q("12 in")))
sketch2.addConstraint(Sketcher.Constraint("DistanceY", 52, 1, 52, 2, Q("9 in")))
sketch2.addConstraint(Sketcher.Constraint("DistanceY", 61, 2, 61, 1, Q("12 in")))
sketch2.addConstraint(Sketcher.Constraint("DistanceY", 63, 2, 63, 1, Q("9 in")))
sketch2.addConstraint(Sketcher.Constraint("DistanceY", -1, 1, 6, 3, Q("8 in")))
sketch2.addConstraint(Sketcher.Constraint("DistanceY", -1, 1, 15, 3, Q("24 in")))
sketch2.addConstraint(Sketcher.Constraint("DistanceY", -1, 1, 28, 3, Q("56 in")))
sketch2.addConstraint(Sketcher.Constraint("DistanceY", -1, 1, 39, 3, Q("40 in")))
sketch2.addConstraint(Sketcher.Constraint("DistanceY", -1, 1, 48, 3, Q("72 in")))
sketch2.addConstraint(Sketcher.Constraint("DistanceY", -1, 1, 59, 3, Q("88 in")))
sketch2.addConstraint(Sketcher.Constraint("DistanceX", -1, 1, 4, 2, Q("2 in")))
sketch2.addConstraint(Sketcher.Constraint("DistanceY", -1, 1, 5, 2, Q("8 in")))
sketch2.addConstraint(Sketcher.Constraint("DistanceY", -1, 1, 25, 2, Q("24 in")))
sketch2.addConstraint(Sketcher.Constraint("DistanceY", -1, 1, 27, 2, Q("56 in")))
sketch2.addConstraint(Sketcher.Constraint("DistanceX", -1, 1, 37, 2, Q("2 in")))
sketch2.addConstraint(Sketcher.Constraint("DistanceY", -1, 1, 38, 2, Q("40 in")))
sketch2.addConstraint(Sketcher.Constraint("DistanceX", -1, 1, 57, 2, Q("2 in")))
sketch2.addConstraint(Sketcher.Constraint("DistanceY", -1, 1, 58, 2, Q("72 in")))
sketch2.addConstraint(Sketcher.Constraint("DistanceY", -1, 1, 69, 2, Q("88 in")))
sketch2.addConstraint(Sketcher.Constraint("Radius", 11, Q("3.6250001 in")))
sketch2.addConstraint(Sketcher.Constraint("Radius", 20, Q("3.6250001 in")))
sketch2.addConstraint(Sketcher.Constraint("Radius", 33, Q("3.6250001 in")))
sketch2.addConstraint(Sketcher.Constraint("Radius", 44, Q("3.6250001 in")))
sketch2.addConstraint(Sketcher.Constraint("Radius", 53, Q("3.6250001 in")))
sketch2.addConstraint(Sketcher.Constraint("Radius", 64, Q("3.6250001 in")))
sketch2.addConstraint(Sketcher.Constraint("DistanceX", 1, 1, 1, 2, Q("7.25 in")))
sketch2.addConstraint(Sketcher.Constraint("DistanceX", -1, 1, 6, 1, Q("1.5 in")))
sketch2.addConstraint(Sketcher.Constraint("DistanceY", -1, 1, 9, 2, Q("22.5 in")))
sketch2.addConstraint(Sketcher.Constraint("DistanceY", -1, 1, 18, 2, Q("9.5 in")))
sketch2.addConstraint(Sketcher.Constraint("DistanceY", -1, 1, 31, 2, Q("41.5 in")))
sketch2.addConstraint(Sketcher.Constraint("DistanceX", -1, 1, 39, 1, Q("1.5 in")))
sketch2.addConstraint(Sketcher.Constraint("DistanceY", -1, 1, 42, 2, Q("54.5 in")))
sketch2.addConstraint(Sketcher.Constraint("DistanceX", -1, 1, 48, 1, Q("1.5 in")))
sketch2.addConstraint(Sketcher.Constraint("DistanceY", -1, 1, 51, 2, Q("86.5 in")))
sketch2.addConstraint(Sketcher.Constraint("DistanceY", -1, 1, 62, 2, Q("73.5 in")))
sketch2.addConstraint(Sketcher.Constraint("DistanceX", -1, 1, 11, 3, Q("3.75 in")))
sketch2.addConstraint(Sketcher.Constraint("DistanceX", -1, 1, 12, 3, Q("5.35 in")))
sketch2.addConstraint(Sketcher.Constraint("DistanceX", -1, 1, 44, 3, Q("3.75 in")))
sketch2.addConstraint(Sketcher.Constraint("DistanceX", -1, 1, 45, 3, Q("5.35 in")))
sketch2.addConstraint(Sketcher.Constraint("DistanceX", -1, 1, 53, 3, Q("3.75 in")))
sketch2.addConstraint(Sketcher.Constraint("DistanceX", -1, 1, 54, 3, Q("5.35 in")))
sketch2.addConstraint(Sketcher.Constraint("DistanceX", -1, 1, 9, 2, Q("1.25 in")))
sketch2.addConstraint(Sketcher.Constraint("DistanceX", -1, 1, 42, 2, Q("1.25 in")))
sketch2.addConstraint(Sketcher.Constraint("DistanceX", -1, 1, 51, 2, Q("1.25 in")))
sketch2.addConstraint(Sketcher.Constraint("DistanceX", -1, 1, 15, 3, Q("5.875 in")))
sketch2.addConstraint(Sketcher.Constraint("DistanceX", -1, 1, 20, 3, Q("3.625 in")))
sketch2.addConstraint(Sketcher.Constraint("DistanceY", 20, 3, -1, 1, Q("2.1250001 in")))
sketch2.addConstraint(Sketcher.Constraint("DistanceX", -1, 1, 21, 3, Q("2.025 in")))
sketch2.addConstraint(Sketcher.Constraint("DistanceX", -1, 1, 28, 3, Q("5.875 in")))
sketch2.addConstraint(Sketcher.Constraint("DistanceX", -1, 1, 33, 3, Q("3.625 in")))
sketch2.addConstraint(Sketcher.Constraint("DistanceY", -1, 1, 33, 3, Q("29.8749999 in")))
sketch2.addConstraint(Sketcher.Constraint("DistanceX", -1, 1, 34, 3, Q("2.025 in")))
sketch2.addConstraint(Sketcher.Constraint("DistanceX", -1, 1, 59, 3, Q("5.875 in")))
sketch2.addConstraint(Sketcher.Constraint("DistanceX", -1, 1, 64, 3, Q("3.625 in")))
sketch2.addConstraint(Sketcher.Constraint("DistanceY", -1, 1, 64, 3, Q("61.8749999 in")))
sketch2.addConstraint(Sketcher.Constraint("DistanceX", -1, 1, 65, 3, Q("2.025 in")))
sketch2.addConstraint(Sketcher.Constraint("DistanceX", -1, 1, 15, 1, Q("5.875 in")))
sketch2.addConstraint(Sketcher.Constraint("DistanceX", -1, 1, 28, 1, Q("5.875 in")))
sketch2.addConstraint(Sketcher.Constraint("DistanceX", -1, 1, 59, 1, Q("5.875 in")))
sketch2.addConstraint(Sketcher.Constraint("Radius", 4, 126.99996))
sketch2.addConstraint(Sketcher.Constraint("Radius", 14, 1524.002382))
sketch2.addConstraint(Sketcher.Constraint("Radius", 23, 1524.002382))
sketch2.addConstraint(Sketcher.Constraint("Radius", 24, 126.99996))
sketch2.addConstraint(Sketcher.Constraint("Radius", 26, 126.99996))
sketch2.addConstraint(Sketcher.Constraint("Radius", 36, 1524.002382))
sketch2.addConstraint(Sketcher.Constraint("Radius", 37, 126.99996))
sketch2.addConstraint(Sketcher.Constraint("Radius", 47, 1524.002382))
sketch2.addConstraint(Sketcher.Constraint("Radius", 56, 1524.002382))
sketch2.addConstraint(Sketcher.Constraint("Radius", 57, 126.99996))
sketch2.addConstraint(Sketcher.Constraint("Radius", 67, 1524.002382))
sketch2.addConstraint(Sketcher.Constraint("Radius", 68, 126.99996))
sketch2.addConstraint(Sketcher.Constraint("DistanceY", -1, 1, 11, 2, Q("30.7837998 in")))
sketch2.addConstraint(Sketcher.Constraint("DistanceY", -1, 1, 20, 2, Q("1.2162002 in")))
sketch2.addConstraint(Sketcher.Constraint("DistanceY", -1, 1, 33, 2, Q("33.2162002 in")))
sketch2.addConstraint(Sketcher.Constraint("DistanceY", -1, 1, 44, 2, Q("62.7837998 in")))
sketch2.addConstraint(Sketcher.Constraint("DistanceY", -1, 1, 53, 2, Q("94.7837998 in")))
sketch2.addConstraint(Sketcher.Constraint("DistanceY", -1, 1, 64, 2, Q("65.2162002 in")))
sketch2.addConstraint(Sketcher.Constraint("DistanceY", 5, 2, 5, 1, 245.911792))
sketch2.addConstraint(Sketcher.Constraint("DistanceY", 69, 1, 69, 2, 245.911792))
sketch2.addConstraint(Sketcher.Constraint("DistanceY", -1, 1, 4, 3, 449.111798))
sketch2.addConstraint(Sketcher.Constraint("DistanceY", -1, 1, 24, 3, 363.688202))
sketch2.addConstraint(Sketcher.Constraint("DistanceY", -1, 1, 26, 3, 1176.488202))
sketch2.addConstraint(Sketcher.Constraint("DistanceY", -1, 1, 37, 3, 1261.911798))
sketch2.addConstraint(Sketcher.Constraint("DistanceY", -1, 1, 57, 3, 2074.711798))
sketch2.addConstraint(Sketcher.Constraint("DistanceY", -1, 1, 68, 3, 1989.288202))
sketch2.addConstraint(Sketcher.Constraint("Distance", 13, 207.027578))
sketch2.addConstraint(Sketcher.Constraint("Distance", 22, 207.027578))
sketch2.addConstraint(Sketcher.Constraint("Distance", 35, 207.027578))
sketch2.addConstraint(Sketcher.Constraint("Distance", 46, 207.027578))
sketch2.addConstraint(Sketcher.Constraint("Distance", 55, 207.027578))
sketch2.addConstraint(Sketcher.Constraint("Distance", 66, 207.027578))
sketch2.addConstraint(Sketcher.Constraint("DistanceY", 25, 1, 25, 2, 245.911792))
sketch2.addConstraint(Sketcher.Constraint("DistanceY", 27, 1, 27, 2, 245.911792))
sketch2.addConstraint(Sketcher.Constraint("DistanceY", 38, 2, 38, 1, 245.911792))
sketch2.addConstraint(Sketcher.Constraint("DistanceY", 58, 2, 58, 1, 245.911792))
sketch2.addConstraint(Sketcher.Constraint("DistanceY", -1, 1, 13, 2, 569.097312))
sketch2.addConstraint(Sketcher.Constraint("DistanceY", -1, 1, 14, 1, 493.945971))
sketch2.addConstraint(Sketcher.Constraint("DistanceY", -1, 1, 22, 2, 243.702688))
sketch2.addConstraint(Sketcher.Constraint("DistanceY", -1, 1, 23, 1, 318.854029))
sketch2.addConstraint(Sketcher.Constraint("DistanceY", -1, 1, 35, 2, 1056.502688))
sketch2.addConstraint(Sketcher.Constraint("DistanceY", -1, 1, 36, 1, 1131.654029))
sketch2.addConstraint(Sketcher.Constraint("DistanceY", -1, 1, 46, 2, 1381.897312))
sketch2.addConstraint(Sketcher.Constraint("DistanceY", -1, 1, 47, 1, 1306.745971))
sketch2.addConstraint(Sketcher.Constraint("DistanceY", -1, 1, 55, 2, 2194.697312))
sketch2.addConstraint(Sketcher.Constraint("DistanceX", -1, 1, 56, 1, 58.977038))
sketch2.addConstraint(Sketcher.Constraint("DistanceY", -1, 1, 66, 2, 1869.302688))
sketch2.addConstraint(Sketcher.Constraint("DistanceX", -1, 1, 67, 1, 128.347962))
sketch2.addConstraint(Sketcher.Constraint("DistanceX", 14, 3, -1, 1, 1366.900757))
sketch2.addConstraint(Sketcher.Constraint("DistanceX", -1, 1, 23, 3, 1554.225757))
sketch2.addConstraint(Sketcher.Constraint("DistanceX", -1, 1, 36, 3, 1554.225757))
sketch2.addConstraint(Sketcher.Constraint("DistanceX", 47, 3, -1, 1, 1366.900757))
sketch2.addConstraint(Sketcher.Constraint("DistanceX", 56, 3, -1, 1, 1366.900757))
sketch2.addConstraint(Sketcher.Constraint("DistanceX", -1, 1, 67, 3, 1554.225757))
pocket1 = doc.addObject("PartDesign::Pocket", "Pocket")
body.addObject(pocket1)
pocket1.Profile = sketch2
pocket1.Type = "ThroughAll"

doc.recompute()
